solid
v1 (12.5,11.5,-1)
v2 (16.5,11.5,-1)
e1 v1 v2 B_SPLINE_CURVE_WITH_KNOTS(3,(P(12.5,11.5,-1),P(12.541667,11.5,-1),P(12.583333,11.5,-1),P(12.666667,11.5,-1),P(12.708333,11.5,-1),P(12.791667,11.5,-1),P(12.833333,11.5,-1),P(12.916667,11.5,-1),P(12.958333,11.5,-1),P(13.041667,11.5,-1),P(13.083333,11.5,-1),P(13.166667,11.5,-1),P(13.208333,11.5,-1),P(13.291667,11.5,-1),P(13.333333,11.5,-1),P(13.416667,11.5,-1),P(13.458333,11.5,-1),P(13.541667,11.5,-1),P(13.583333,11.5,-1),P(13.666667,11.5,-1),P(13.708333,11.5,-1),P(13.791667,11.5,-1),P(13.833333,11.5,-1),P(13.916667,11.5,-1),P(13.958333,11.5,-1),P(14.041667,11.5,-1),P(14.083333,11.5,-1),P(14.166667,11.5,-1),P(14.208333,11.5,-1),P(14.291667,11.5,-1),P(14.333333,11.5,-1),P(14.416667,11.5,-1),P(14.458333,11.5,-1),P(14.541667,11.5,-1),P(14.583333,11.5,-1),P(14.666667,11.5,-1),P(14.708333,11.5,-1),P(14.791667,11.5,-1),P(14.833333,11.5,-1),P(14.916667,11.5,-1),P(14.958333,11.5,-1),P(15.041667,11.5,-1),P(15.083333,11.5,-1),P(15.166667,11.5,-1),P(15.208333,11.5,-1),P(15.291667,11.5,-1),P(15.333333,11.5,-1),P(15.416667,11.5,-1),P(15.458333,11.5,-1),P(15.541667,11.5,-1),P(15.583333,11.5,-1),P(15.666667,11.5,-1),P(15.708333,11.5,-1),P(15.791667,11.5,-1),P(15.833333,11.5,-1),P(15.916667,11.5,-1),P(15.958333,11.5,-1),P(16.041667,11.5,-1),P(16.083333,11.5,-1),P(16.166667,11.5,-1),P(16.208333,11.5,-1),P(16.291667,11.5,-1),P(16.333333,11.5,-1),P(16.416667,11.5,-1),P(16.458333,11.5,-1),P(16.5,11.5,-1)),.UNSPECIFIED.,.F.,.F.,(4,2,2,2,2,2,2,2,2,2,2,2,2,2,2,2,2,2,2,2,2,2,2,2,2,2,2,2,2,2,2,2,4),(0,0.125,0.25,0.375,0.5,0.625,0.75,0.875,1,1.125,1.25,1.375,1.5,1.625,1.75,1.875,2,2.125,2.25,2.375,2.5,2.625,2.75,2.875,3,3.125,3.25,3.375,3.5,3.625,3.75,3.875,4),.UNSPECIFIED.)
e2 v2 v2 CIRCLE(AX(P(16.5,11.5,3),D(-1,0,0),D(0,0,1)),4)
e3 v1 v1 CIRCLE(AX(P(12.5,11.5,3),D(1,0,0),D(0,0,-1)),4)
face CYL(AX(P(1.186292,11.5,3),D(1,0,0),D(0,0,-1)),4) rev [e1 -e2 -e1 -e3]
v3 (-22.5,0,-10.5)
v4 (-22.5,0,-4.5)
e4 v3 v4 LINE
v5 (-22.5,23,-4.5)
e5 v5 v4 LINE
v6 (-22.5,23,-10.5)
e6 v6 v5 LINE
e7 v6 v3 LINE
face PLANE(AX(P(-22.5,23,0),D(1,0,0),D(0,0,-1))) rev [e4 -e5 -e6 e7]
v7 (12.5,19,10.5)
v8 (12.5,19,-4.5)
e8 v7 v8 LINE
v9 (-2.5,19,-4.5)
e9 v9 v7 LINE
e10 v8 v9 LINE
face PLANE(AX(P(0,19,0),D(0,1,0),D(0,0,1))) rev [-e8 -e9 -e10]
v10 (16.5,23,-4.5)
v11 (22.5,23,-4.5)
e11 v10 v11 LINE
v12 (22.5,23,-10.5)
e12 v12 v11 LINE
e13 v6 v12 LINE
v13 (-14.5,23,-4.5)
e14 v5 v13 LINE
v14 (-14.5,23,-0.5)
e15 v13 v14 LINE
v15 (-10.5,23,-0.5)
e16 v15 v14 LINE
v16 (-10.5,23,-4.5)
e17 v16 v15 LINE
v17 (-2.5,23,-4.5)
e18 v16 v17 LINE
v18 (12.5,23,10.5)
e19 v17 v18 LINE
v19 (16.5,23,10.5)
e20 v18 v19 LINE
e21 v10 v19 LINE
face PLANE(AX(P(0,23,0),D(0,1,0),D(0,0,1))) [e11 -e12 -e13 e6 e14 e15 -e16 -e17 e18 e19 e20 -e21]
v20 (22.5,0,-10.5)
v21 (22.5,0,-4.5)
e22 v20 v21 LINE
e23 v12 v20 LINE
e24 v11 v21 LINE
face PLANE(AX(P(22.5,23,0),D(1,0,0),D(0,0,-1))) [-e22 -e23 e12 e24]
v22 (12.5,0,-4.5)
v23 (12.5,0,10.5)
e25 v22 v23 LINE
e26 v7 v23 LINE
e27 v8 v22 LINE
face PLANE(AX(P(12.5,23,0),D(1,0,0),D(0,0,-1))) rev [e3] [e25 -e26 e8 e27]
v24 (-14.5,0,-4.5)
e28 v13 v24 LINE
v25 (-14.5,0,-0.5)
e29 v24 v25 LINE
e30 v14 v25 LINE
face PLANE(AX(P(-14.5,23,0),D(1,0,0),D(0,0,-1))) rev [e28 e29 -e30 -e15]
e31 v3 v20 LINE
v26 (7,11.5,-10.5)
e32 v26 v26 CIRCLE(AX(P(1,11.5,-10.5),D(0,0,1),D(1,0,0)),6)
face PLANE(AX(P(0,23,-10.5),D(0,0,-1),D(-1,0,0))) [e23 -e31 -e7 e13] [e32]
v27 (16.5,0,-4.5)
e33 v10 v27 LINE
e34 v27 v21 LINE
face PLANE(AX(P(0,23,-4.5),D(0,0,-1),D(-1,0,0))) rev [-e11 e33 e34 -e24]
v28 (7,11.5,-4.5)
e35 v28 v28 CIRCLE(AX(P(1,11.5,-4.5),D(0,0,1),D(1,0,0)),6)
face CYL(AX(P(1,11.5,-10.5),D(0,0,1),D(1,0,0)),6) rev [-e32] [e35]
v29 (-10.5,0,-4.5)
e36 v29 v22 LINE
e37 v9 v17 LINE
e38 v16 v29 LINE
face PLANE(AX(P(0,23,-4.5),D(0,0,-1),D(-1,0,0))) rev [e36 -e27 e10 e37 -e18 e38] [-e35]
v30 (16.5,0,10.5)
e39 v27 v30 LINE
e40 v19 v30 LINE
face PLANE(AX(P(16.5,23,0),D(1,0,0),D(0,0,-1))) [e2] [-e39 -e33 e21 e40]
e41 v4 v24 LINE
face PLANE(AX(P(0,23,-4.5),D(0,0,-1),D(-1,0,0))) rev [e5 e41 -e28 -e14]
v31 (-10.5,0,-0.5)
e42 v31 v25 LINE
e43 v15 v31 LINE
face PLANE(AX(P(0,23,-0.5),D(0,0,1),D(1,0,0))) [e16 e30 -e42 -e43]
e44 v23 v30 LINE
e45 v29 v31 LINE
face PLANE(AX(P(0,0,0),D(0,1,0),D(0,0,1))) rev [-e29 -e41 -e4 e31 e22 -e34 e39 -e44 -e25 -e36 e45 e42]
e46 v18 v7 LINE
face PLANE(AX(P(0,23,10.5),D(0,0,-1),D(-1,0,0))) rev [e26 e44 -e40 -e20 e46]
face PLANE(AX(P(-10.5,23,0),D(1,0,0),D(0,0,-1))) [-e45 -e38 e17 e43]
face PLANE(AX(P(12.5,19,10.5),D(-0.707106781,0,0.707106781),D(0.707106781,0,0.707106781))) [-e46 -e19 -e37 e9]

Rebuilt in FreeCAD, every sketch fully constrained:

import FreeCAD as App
import Part
import Sketcher

V = App.Vector
Q = App.Units.Quantity

doc = App.newDocument("Part")
body = doc.addObject("PartDesign::Body", "Body")

# Sketch on XZ plane
sketch1 = doc.addObject("Sketcher::SketchObject", "Sketch")
body.addObject(sketch1)
sketch1.AttachmentSupport = (doc.XZ_Plane, [""])
sketch1.MapMode = "FlatFace"
sketch1.addGeometry([
    Part.LineSegment(V(22.5, -10.5, 0), V(-22.5, -10.5, 0)),  # 0
    Part.LineSegment(V(-22.5, -10.5, 0), V(-22.5, -4.5, 0)),  # 1
    Part.LineSegment(V(-22.5, -4.5, 0), V(-14.5, -4.5, 0)),  # 2
    Part.LineSegment(V(-14.5, -4.5, 0), V(-14.5, -0.5, 0)),  # 3
    Part.LineSegment(V(-14.5, -0.5, 0), V(-10.5, -0.5, 0)),  # 4
    Part.LineSegment(V(-10.5, -0.5, 0), V(-10.5, -4.5, 0)),  # 5
    Part.LineSegment(V(-10.5, -4.5, 0), V(12.5, -4.5, 0)),  # 6
    Part.LineSegment(V(12.5, -4.5, 0), V(12.5, 10.5, 0)),  # 7
    Part.LineSegment(V(12.5, 10.5, 0), V(16.5, 10.5, 0)),  # 8
    Part.LineSegment(V(16.5, 10.5, 0), V(16.5, -4.5, 0)),  # 9
    Part.LineSegment(V(16.5, -4.5, 0), V(22.5, -4.5, 0)),  # 10
    Part.LineSegment(V(22.5, -4.5, 0), V(22.5, -10.5, 0)),  # 11
], False)
sketch1.addConstraint([
    Sketcher.Constraint("Coincident", 0, 2, 1, 1),
    Sketcher.Constraint("Coincident", 1, 2, 2, 1),
    Sketcher.Constraint("Coincident", 2, 2, 3, 1),
    Sketcher.Constraint("Coincident", 3, 2, 4, 1),
    Sketcher.Constraint("Coincident", 4, 2, 5, 1),
    Sketcher.Constraint("Coincident", 5, 2, 6, 1),
    Sketcher.Constraint("Coincident", 6, 2, 7, 1),
    Sketcher.Constraint("Coincident", 7, 2, 8, 1),
    Sketcher.Constraint("Coincident", 8, 2, 9, 1),
    Sketcher.Constraint("Coincident", 9, 2, 10, 1),
    Sketcher.Constraint("Coincident", 10, 2, 11, 1),
    Sketcher.Constraint("Coincident", 11, 2, 0, 1),
    Sketcher.Constraint("Horizontal", 0),
    Sketcher.Constraint("Vertical", 1),
    Sketcher.Constraint("Horizontal", 2),
    Sketcher.Constraint("Vertical", 3),
    Sketcher.Constraint("Horizontal", 4),
    Sketcher.Constraint("Vertical", 5),
    Sketcher.Constraint("Horizontal", 6),
    Sketcher.Constraint("Vertical", 7),
    Sketcher.Constraint("Horizontal", 8),
    Sketcher.Constraint("Vertical", 9),
    Sketcher.Constraint("Horizontal", 10),
    Sketcher.Constraint("Vertical", 11),
    Sketcher.Constraint("Symmetric", 1, 2, 10, 2, -2),
    Sketcher.Constraint("Horizontal", 2, 2, 5, 2),
    Sketcher.Constraint("Equal", 4, 8),
    Sketcher.Constraint("Equal", 10, 1),
    Sketcher.Constraint("Equal", 8, 3),
    Sketcher.Constraint("DistanceX", 0, 2, 0, 1, Q("45 mm")),
    Sketcher.Constraint("DistanceX", 2, 1, 2, 2, Q("8 mm")),
    Sketcher.Constraint("DistanceX", 4, 1, 4, 2, Q("4 mm")),
    Sketcher.Constraint("DistanceX", 6, 1, 6, 2, Q("23 mm")),
    Sketcher.Constraint("DistanceY", 7, 1, 7, 2, Q("15 mm")),
    Sketcher.Constraint("DistanceY", 0, 2, -1, 1, Q("10.5 mm")),
])
pad1 = doc.addObject("PartDesign::Pad", "Pad")
body.addObject(pad1)
pad1.Profile = sketch1
pad1.Length = 23
pad1.Reversed = True

# Sketch on XZ plane
sketch2 = doc.addObject("Sketcher::SketchObject", "Sketch001")
body.addObject(sketch2)
sketch2.AttachmentSupport = (doc.XZ_Plane, [""])
sketch2.MapMode = "FlatFace"
sketch2.AttachmentOffset = App.Placement(V(0, 0, -23), App.Rotation())
sketch2.addGeometry([
    Part.LineSegment(V(-2, -4, 0), V(12, 10, 0)),
    Part.LineSegment(V(12, 10, 0), V(12, -4, 0)),
    Part.LineSegment(V(12, -4, 0), V(-2, -4, 0)),
], False)
sketch2.addConstraint([
    Sketcher.Constraint("Coincident", 0, 2, 1, 1),
    Sketcher.Constraint("Coincident", 1, 2, 2, 1),
    Sketcher.Constraint("Coincident", 2, 2, 0, 1),
    Sketcher.Constraint("Vertical", 1),
    Sketcher.Constraint("Horizontal", 2),
    Sketcher.Constraint("Equal", 2, 1),
    Sketcher.Constraint("DistanceX", 2, 2, 2, 1, Q("15 mm")),
    Sketcher.Constraint("DistanceX", -1, 1, 0, 2, Q("12.5 mm")),
    Sketcher.Constraint("DistanceY", -1, 1, 0, 2, Q("10.5 mm")),
])
pad2 = doc.addObject("PartDesign::Pad", "Pad001")
body.addObject(pad2)
pad2.Profile = sketch2
pad2.Length = 4

# Sketch on XY plane
sketch3 = doc.addObject("Sketcher::SketchObject", "Sketch002")
body.addObject(sketch3)
sketch3.AttachmentSupport = (doc.XY_Plane, [""])
sketch3.MapMode = "FlatFace"
sketch3.AttachmentOffset = App.Placement(V(0, 0, -4.5), App.Rotation())
sketch3.addGeometry(Part.Circle(V(1, 12, 0), V(0, 0, 1), 6), False)
sketch3.addConstraint([
    Sketcher.Constraint("Diameter", 0, Q("12 mm")),
    Sketcher.Constraint("DistanceX", -1, 1, 0, 3, Q("1 mm")),
    Sketcher.Constraint("DistanceY", -1, 1, 0, 3, Q("11.5 mm")),
])
pocket1 = doc.addObject("PartDesign::Pocket", "Pocket")
body.addObject(pocket1)
pocket1.Profile = sketch3
pocket1.Type = "ThroughAll"

# Sketch on YZ plane
sketch4 = doc.addObject("Sketcher::SketchObject", "Sketch003")
body.addObject(sketch4)
sketch4.AttachmentSupport = (doc.YZ_Plane, [""])
sketch4.MapMode = "FlatFace"
sketch4.AttachmentOffset = App.Placement(V(0, 0, 16.5), App.Rotation())
sketch4.addGeometry(Part.Circle(V(11.5, 3, 0), V(0, 0, 1), 4), False)
sketch4.addConstraint([
    Sketcher.Constraint("Diameter", 0, Q("8 mm")),
    Sketcher.Constraint("DistanceY", -1, 1, 0, 3, Q("3 mm")),
    Sketcher.Constraint("DistanceX", -1, 1, 0, 3, Q("11.5 mm")),
])
pocket2 = doc.addObject("PartDesign::Pocket", "Pocket001")
body.addObject(pocket2)
pocket2.Profile = sketch4
pocket2.Length = 4

doc.recompute()
